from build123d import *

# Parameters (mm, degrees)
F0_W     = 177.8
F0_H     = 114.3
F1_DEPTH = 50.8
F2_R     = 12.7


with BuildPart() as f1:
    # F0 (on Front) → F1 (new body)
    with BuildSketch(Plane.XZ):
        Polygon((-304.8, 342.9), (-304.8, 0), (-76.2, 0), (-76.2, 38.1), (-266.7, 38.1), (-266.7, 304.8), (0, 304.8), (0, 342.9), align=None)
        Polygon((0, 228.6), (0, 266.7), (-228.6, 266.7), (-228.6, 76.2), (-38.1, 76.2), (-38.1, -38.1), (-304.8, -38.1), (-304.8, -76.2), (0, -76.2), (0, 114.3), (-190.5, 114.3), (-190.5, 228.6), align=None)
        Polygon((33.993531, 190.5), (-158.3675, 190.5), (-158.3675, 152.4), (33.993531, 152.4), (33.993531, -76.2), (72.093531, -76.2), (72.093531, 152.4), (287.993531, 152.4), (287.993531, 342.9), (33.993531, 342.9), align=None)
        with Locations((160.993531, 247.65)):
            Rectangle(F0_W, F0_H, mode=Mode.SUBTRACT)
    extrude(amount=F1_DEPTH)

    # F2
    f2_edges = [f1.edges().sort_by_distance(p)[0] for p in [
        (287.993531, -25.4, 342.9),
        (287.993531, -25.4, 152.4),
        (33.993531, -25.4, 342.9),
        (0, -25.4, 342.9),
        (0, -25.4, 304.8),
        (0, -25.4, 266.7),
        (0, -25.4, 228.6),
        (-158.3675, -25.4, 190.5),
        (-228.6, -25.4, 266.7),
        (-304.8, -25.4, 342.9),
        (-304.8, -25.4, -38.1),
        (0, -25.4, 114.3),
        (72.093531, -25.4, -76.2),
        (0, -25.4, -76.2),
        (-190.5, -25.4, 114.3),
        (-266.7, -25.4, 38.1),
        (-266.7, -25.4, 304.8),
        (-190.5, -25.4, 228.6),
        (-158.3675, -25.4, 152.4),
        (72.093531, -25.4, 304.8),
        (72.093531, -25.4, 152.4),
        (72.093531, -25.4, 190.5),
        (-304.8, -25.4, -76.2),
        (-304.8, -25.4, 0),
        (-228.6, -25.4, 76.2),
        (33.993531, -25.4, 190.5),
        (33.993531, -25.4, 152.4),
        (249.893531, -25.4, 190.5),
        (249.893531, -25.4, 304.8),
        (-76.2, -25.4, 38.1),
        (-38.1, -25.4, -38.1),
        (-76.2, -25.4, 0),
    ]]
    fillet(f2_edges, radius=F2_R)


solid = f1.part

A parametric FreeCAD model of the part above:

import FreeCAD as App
import Part
import Sketcher
from FreeCAD import Vector
Q = App.Units.Quantity


def edges_at(feature, points):
    """Names of the edges that pass closest to the given points."""
    edges = feature.Shape.Edges
    near = lambda p: min(range(len(edges)), key=lambda i: edges[i].distToShape(Part.Vertex(*p))[0])
    return sorted({f"Edge{near(p) + 1}" for p in points})

doc = App.newDocument("Part")
body = doc.addObject("PartDesign::Body", "Body")
body.AllowCompound = True

sketch1 = body.newObject("Sketcher::SketchObject", "Sketch")
sketch1.AttachmentSupport = (doc.getObject("XZ_Plane"), [""])
sketch1.MapMode = "FlatFace"
sketch1.addGeometry([
    Part.LineSegment(Vector(-304.8, 342.9, 0), Vector(-304.8, 0, 0)),
    Part.LineSegment(Vector(-304.8, 0, 0), Vector(-76.2, 0, 0)),
    Part.LineSegment(Vector(-76.2, 0, 0), Vector(-76.2, 38.1, 0)),
    Part.LineSegment(Vector(-76.2, 38.1, 0), Vector(-266.7, 38.1, 0)),
    Part.LineSegment(Vector(-266.7, 38.1, 0), Vector(-266.7, 304.8, 0)),
    Part.LineSegment(Vector(-266.7, 304.8, 0), Vector(0, 304.8, 0)),
    Part.LineSegment(Vector(0, 304.8, 0), Vector(0, 342.9, 0)),
    Part.LineSegment(Vector(0, 342.9, 0), Vector(-304.8, 342.9, 0)),
    Part.LineSegment(Vector(0, 228.6, 0), Vector(0, 266.7, 0)),
    Part.LineSegment(Vector(0, 266.7, 0), Vector(-228.6, 266.7, 0)),
    Part.LineSegment(Vector(-228.6, 266.7, 0), Vector(-228.6, 76.2, 0)),
    Part.LineSegment(Vector(-228.6, 76.2, 0), Vector(-38.1, 76.2, 0)),
    Part.LineSegment(Vector(-38.1, 76.2, 0), Vector(-38.1, -38.1, 0)),
    Part.LineSegment(Vector(-38.1, -38.1, 0), Vector(-304.8, -38.1, 0)),
    Part.LineSegment(Vector(-304.8, -38.1, 0), Vector(-304.8, -76.2, 0)),
    Part.LineSegment(Vector(-304.8, -76.2, 0), Vector(0, -76.2, 0)),
    Part.LineSegment(Vector(0, -76.2, 0), Vector(0, 114.3, 0)),
    Part.LineSegment(Vector(0, 114.3, 0), Vector(-190.5, 114.3, 0)),
    Part.LineSegment(Vector(-190.5, 114.3, 0), Vector(-190.5, 228.6, 0)),
    Part.LineSegment(Vector(-190.5, 228.6, 0), Vector(0, 228.6, 0)),
    Part.LineSegment(Vector(33.993531, 190.5, 0), Vector(-158.3675, 190.5, 0)),
    Part.LineSegment(Vector(-158.3675, 190.5, 0), Vector(-158.3675, 152.4, 0)),
    Part.LineSegment(Vector(-158.3675, 152.4, 0), Vector(33.993531, 152.4, 0)),
    Part.LineSegment(Vector(33.993531, 152.4, 0), Vector(33.993531, -76.2, 0)),
    Part.LineSegment(Vector(33.993531, -76.2, 0), Vector(72.093531, -76.2, 0)),
    Part.LineSegment(Vector(72.093531, -76.2, 0), Vector(72.093531, 152.4, 0)),
    Part.LineSegment(Vector(72.093531, 152.4, 0), Vector(287.993531, 152.4, 0)),
    Part.LineSegment(Vector(287.993531, 152.4, 0), Vector(287.993531, 342.9, 0)),
    Part.LineSegment(Vector(287.993531, 342.9, 0), Vector(33.993531, 342.9, 0)),
    Part.LineSegment(Vector(33.993531, 342.9, 0), Vector(33.993531, 190.5, 0)),
    Part.LineSegment(Vector(249.893531, 190.5, 0), Vector(72.093531, 190.5, 0)),
    Part.LineSegment(Vector(72.093531, 190.5, 0), Vector(72.093531, 304.8, 0)),
    Part.LineSegment(Vector(72.093531, 304.8, 0), Vector(249.893531, 304.8, 0)),
    Part.LineSegment(Vector(249.893531, 304.8, 0), Vector(249.893531, 190.5, 0)),
], False)
sketch1.addConstraint([
    Sketcher.Constraint("Coincident", 0, 2, 1, 1),
    Sketcher.Constraint("Coincident", 1, 2, 2, 1),
    Sketcher.Constraint("Coincident", 2, 2, 3, 1),
    Sketcher.Constraint("Coincident", 3, 2, 4, 1),
    Sketcher.Constraint("Coincident", 4, 2, 5, 1),
    Sketcher.Constraint("Coincident", 5, 2, 6, 1),
    Sketcher.Constraint("Coincident", 6, 2, 7, 1),
    Sketcher.Constraint("Coincident", 7, 2, 0, 1),
    Sketcher.Constraint("Coincident", 8, 2, 9, 1),
    Sketcher.Constraint("Coincident", 9, 2, 10, 1),
    Sketcher.Constraint("Coincident", 10, 2, 11, 1),
    Sketcher.Constraint("Coincident", 11, 2, 12, 1),
    Sketcher.Constraint("Coincident", 12, 2, 13, 1),
    Sketcher.Constraint("Coincident", 13, 2, 14, 1),
    Sketcher.Constraint("Coincident", 14, 2, 15, 1),
    Sketcher.Constraint("Coincident", 15, 2, 16, 1),
    Sketcher.Constraint("Coincident", 16, 2, 17, 1),
    Sketcher.Constraint("Coincident", 17, 2, 18, 1),
    Sketcher.Constraint("Coincident", 18, 2, 19, 1),
    Sketcher.Constraint("Coincident", 19, 2, 8, 1),
    Sketcher.Constraint("Coincident", 20, 2, 21, 1),
    Sketcher.Constraint("Coincident", 21, 2, 22, 1),
    Sketcher.Constraint("Coincident", 22, 2, 23, 1),
    Sketcher.Constraint("Coincident", 23, 2, 24, 1),
    Sketcher.Constraint("Coincident", 24, 2, 25, 1),
    Sketcher.Constraint("Coincident", 25, 2, 26, 1),
    Sketcher.Constraint("Coincident", 26, 2, 27, 1),
    Sketcher.Constraint("Coincident", 27, 2, 28, 1),
    Sketcher.Constraint("Coincident", 28, 2, 29, 1),
    Sketcher.Constraint("Coincident", 29, 2, 20, 1),
    Sketcher.Constraint("Coincident", 30, 2, 31, 1),
    Sketcher.Constraint("Coincident", 31, 2, 32, 1),
    Sketcher.Constraint("Coincident", 32, 2, 33, 1),
    Sketcher.Constraint("Coincident", 33, 2, 30, 1),
    Sketcher.Constraint("Vertical", 0),
    Sketcher.Constraint("Horizontal", 1),
    Sketcher.Constraint("Vertical", 2),
    Sketcher.Constraint("Horizontal", 3),
    Sketcher.Constraint("Vertical", 4),
    Sketcher.Constraint("Horizontal", 5),
    Sketcher.Constraint("Vertical", 6),
    Sketcher.Constraint("Horizontal", 7),
    Sketcher.Constraint("Vertical", 8),
    Sketcher.Constraint("Horizontal", 9),
    Sketcher.Constraint("Vertical", 10),
    Sketcher.Constraint("Horizontal", 11),
    Sketcher.Constraint("Vertical", 12),
    Sketcher.Constraint("Horizontal", 13),
    Sketcher.Constraint("Vertical", 14),
    Sketcher.Constraint("Horizontal", 15),
    Sketcher.Constraint("Vertical", 16),
    Sketcher.Constraint("Horizontal", 17),
    Sketcher.Constraint("Vertical", 18),
    Sketcher.Constraint("Horizontal", 19),
    Sketcher.Constraint("Horizontal", 20),
    Sketcher.Constraint("Vertical", 21),
    Sketcher.Constraint("Horizontal", 22),
    Sketcher.Constraint("Vertical", 23),
    Sketcher.Constraint("Horizontal", 24),
    Sketcher.Constraint("Vertical", 25),
    Sketcher.Constraint("Horizontal", 26),
    Sketcher.Constraint("Vertical", 27),
    Sketcher.Constraint("Horizontal", 28),
    Sketcher.Constraint("Vertical", 29),
    Sketcher.Constraint("Horizontal", 30),
    Sketcher.Constraint("Vertical", 31),
    Sketcher.Constraint("Horizontal", 32),
    Sketcher.Constraint("Vertical", 33),
    Sketcher.Constraint("PointOnObject", 0, 2, -1),
    Sketcher.Constraint("PointOnObject", 5, 2, -2),
    Sketcher.Constraint("PointOnObject", 8, 2, -2),
    Sketcher.Constraint("PointOnObject", 15, 2, -2),
    Sketcher.Constraint("Horizontal", 15, 2, 23, 2),
    Sketcher.Constraint("Horizontal", 22, 2, 25, 2),
    Sketcher.Constraint("Horizontal", 7, 2, 27, 2),
    Sketcher.Constraint("Horizontal", 29, 2, 30, 2),
    Sketcher.Constraint("Horizontal", 5, 2, 31, 2),
    Sketcher.Constraint("Vertical", 7, 2, 13, 2),
    Sketcher.Constraint("Vertical", 23, 2, 28, 2),
    Sketcher.Constraint("Vertical", 25, 2, 30, 2),
    Sketcher.Constraint("Equal", 1, 9),
    Sketcher.Constraint("Equal", 3, 11),
    Sketcher.Constraint("Equal", 11, 17),
    Sketcher.Constraint("Equal", 24, 2),
    Sketcher.Constraint("Equal", 13, 4),
    Sketcher.Constraint("Equal", 2, 6),
    Sketcher.Constraint("Equal", 6, 8),
    Sketcher.Constraint("Equal", 19, 10),
    Sketcher.Constraint("Equal", 8, 14),
    Sketcher.Constraint("Equal", 10, 16),
    Sketcher.Constraint("Equal", 14, 21),
    Sketcher.Constraint("Equal", 9, 23),
    Sketcher.Constraint("Equal", 16, 27),
    Sketcher.Constraint("Equal", 18, 31),
    Sketcher.Constraint("DistanceX", 1, 1, 1, 2, Q("9 in")),
    Sketcher.Constraint("DistanceX", 7, 2, 7, 1, Q("12 in")),
    Sketcher.Constraint("DistanceX", 28, 2, 28, 1, Q("10 in")),
    Sketcher.Constraint("DistanceX", 30, 2, 30, 1, Q("7 in")),
    Sketcher.Constraint("DistanceY", 29, 2, 29, 1, Q("6 in")),
    Sketcher.Constraint("DistanceX", 3, 2, 3, 1, Q("7.5 in")),
    Sketcher.Constraint("DistanceX", 20, 2, 20, 1, Q("192.361031 mm")),
    Sketcher.Constraint("DistanceX", 20, 2, -1, 1, Q("158.3675 mm")),
])
pad1 = body.newObject("PartDesign::Pad", "Pad")
pad1.Profile = sketch1
pad1.Length = Q("2 in")
doc.recompute()

fillet = body.newObject("PartDesign::Fillet", "Fillet")
fillet.Base = (pad1, edges_at(pad1, [
    (287.994, -25.4, 342.9),
    (287.994, -25.4, 152.4),
    (33.994, -25.4, 342.9),
    (0, -25.4, 342.9),
    (0, -25.4, 304.8),
    (0, -25.4, 266.7),
    (0, -25.4, 228.6),
    (-158.368, -25.4, 190.5),
    (-228.6, -25.4, 266.7),
    (-304.8, -25.4, 342.9),
    (-304.8, -25.4, -38.1),
    (0, -25.4, 114.3),
    (72.094, -25.4, -76.2),
    (0, -25.4, -76.2),
    (-190.5, -25.4, 114.3),
    (-266.7, -25.4, 38.1),
    (-266.7, -25.4, 304.8),
    (-190.5, -25.4, 228.6),
    (-158.368, -25.4, 152.4),
    (72.094, -25.4, 304.8),
    (72.094, -25.4, 152.4),
    (72.094, -25.4, 190.5),
    (-304.8, -25.4, -76.2),
    (-304.8, -25.4, 0),
    (-228.6, -25.4, 76.2),
    (33.994, -25.4, 190.5),
    (33.994, -25.4, 152.4),
    (249.894, -25.4, 190.5),
    (249.894, -25.4, 304.8),
    (-76.2, -25.4, 38.1),
    (-38.1, -25.4, -38.1),
    (-76.2, -25.4, 0),
]))
fillet.Radius = Q("0.5 in")

doc.recompute()
